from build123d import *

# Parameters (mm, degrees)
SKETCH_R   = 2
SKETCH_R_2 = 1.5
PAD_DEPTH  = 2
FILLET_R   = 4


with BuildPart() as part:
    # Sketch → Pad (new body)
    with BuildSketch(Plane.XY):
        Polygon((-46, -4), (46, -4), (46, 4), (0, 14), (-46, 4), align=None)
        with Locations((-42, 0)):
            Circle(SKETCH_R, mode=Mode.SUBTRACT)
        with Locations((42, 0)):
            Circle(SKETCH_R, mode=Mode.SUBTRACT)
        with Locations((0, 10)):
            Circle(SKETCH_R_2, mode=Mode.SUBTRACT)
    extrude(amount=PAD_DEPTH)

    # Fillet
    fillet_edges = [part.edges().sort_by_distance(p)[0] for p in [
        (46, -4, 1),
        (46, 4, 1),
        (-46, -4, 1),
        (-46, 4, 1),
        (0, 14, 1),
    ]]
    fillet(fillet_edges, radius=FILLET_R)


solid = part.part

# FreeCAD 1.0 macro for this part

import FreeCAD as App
import Part
import Sketcher


def edges_at(feature, points):
    """Names of the edges that pass closest to the given points."""
    edges = feature.Shape.Edges
    near = lambda p: min(range(len(edges)), key=lambda i: edges[i].distToShape(Part.Vertex(*p))[0])
    return sorted({f"Edge{near(p) + 1}" for p in points})

doc = App.newDocument("Part")
body = doc.addObject("PartDesign::Body", "Body")

# Sketch on XY plane
sketch1 = body.newObject("Sketcher::SketchObject", "Sketch")
sketch1.AttachmentSupport = (doc.getObject("XY_Plane"), [""])
sketch1.MapMode = "FlatFace"
sketch1.addGeometry([
    Part.LineSegment(App.Vector(-46, -4, 0), App.Vector(46, -4, 0)),  # 0
    Part.LineSegment(App.Vector(46, -4, 0), App.Vector(46, 4, 0)),  # 1
    Part.LineSegment(App.Vector(46, 4, 0), App.Vector(0, 14, 0)),  # 2
    Part.LineSegment(App.Vector(0, 14, 0), App.Vector(-46, 4, 0)),  # 3
    Part.LineSegment(App.Vector(-46, 4, 0), App.Vector(-46, -4, 0)),  # 4
    Part.Circle(App.Vector(-42, 0, 0), App.Vector(0, 0, 1), 2),  # 5
    Part.Circle(App.Vector(42, 0, 0), App.Vector(0, 0, 1), 2),  # 6
    Part.Circle(App.Vector(0, 10, 0), App.Vector(0, 0, 1), 1.5),  # 7
], False)
sketch1.addConstraint([
    Sketcher.Constraint("Coincident", 0, 2, 1, 1),
    Sketcher.Constraint("Coincident", 1, 2, 2, 1),
    Sketcher.Constraint("Coincident", 2, 2, 3, 1),
    Sketcher.Constraint("Coincident", 3, 2, 4, 1),
    Sketcher.Constraint("Coincident", 4, 2, 0, 1),
    Sketcher.Constraint("Horizontal", 0),
    Sketcher.Constraint("Vertical", 1),
    Sketcher.Constraint("Vertical", 4),
    Sketcher.Constraint("Equal", 5, 6),
    Sketcher.Constraint("Symmetric", 5, 3, 6, 3, -1, 1),
    Sketcher.Constraint("Symmetric", 0, 2, 3, 2, -1, 1),
    Sketcher.Constraint("PointOnObject", 5, 3, -1),
    Sketcher.Constraint("PointOnObject", 7, 3, -2),
    Sketcher.Constraint("PointOnObject", 2, 2, -2),
    Sketcher.Constraint("Horizontal", 1, 2, 3, 2),
    Sketcher.Constraint("Diameter", 5, 4.0),
    Sketcher.Constraint("Diameter", 7, 3.0),
    Sketcher.Constraint("DistanceX", 0, 1, 0, 2, 92.0),
    Sketcher.Constraint("DistanceY", 1, 1, 1, 2, 8.0),
    Sketcher.Constraint("DistanceX", 5, 3, -1, 1, 42.0),
    Sketcher.Constraint("DistanceY", -1, 1, 7, 3, 10.0),
    Sketcher.Constraint("DistanceY", -1, 1, 2, 2, 14.0),
])
pad1 = body.newObject("PartDesign::Pad", "Pad")
pad1.Profile = sketch1
pad1.Length = 2
doc.recompute()

fillet = body.newObject("PartDesign::Fillet", "Fillet")
fillet.Base = (pad1, edges_at(pad1, [
    (46, -4, 1),
    (46, 4, 1),
    (-46, -4, 1),
    (-46, 4, 1),
    (0, 14, 1),
]))
fillet.Radius = 4

doc.recompute()
